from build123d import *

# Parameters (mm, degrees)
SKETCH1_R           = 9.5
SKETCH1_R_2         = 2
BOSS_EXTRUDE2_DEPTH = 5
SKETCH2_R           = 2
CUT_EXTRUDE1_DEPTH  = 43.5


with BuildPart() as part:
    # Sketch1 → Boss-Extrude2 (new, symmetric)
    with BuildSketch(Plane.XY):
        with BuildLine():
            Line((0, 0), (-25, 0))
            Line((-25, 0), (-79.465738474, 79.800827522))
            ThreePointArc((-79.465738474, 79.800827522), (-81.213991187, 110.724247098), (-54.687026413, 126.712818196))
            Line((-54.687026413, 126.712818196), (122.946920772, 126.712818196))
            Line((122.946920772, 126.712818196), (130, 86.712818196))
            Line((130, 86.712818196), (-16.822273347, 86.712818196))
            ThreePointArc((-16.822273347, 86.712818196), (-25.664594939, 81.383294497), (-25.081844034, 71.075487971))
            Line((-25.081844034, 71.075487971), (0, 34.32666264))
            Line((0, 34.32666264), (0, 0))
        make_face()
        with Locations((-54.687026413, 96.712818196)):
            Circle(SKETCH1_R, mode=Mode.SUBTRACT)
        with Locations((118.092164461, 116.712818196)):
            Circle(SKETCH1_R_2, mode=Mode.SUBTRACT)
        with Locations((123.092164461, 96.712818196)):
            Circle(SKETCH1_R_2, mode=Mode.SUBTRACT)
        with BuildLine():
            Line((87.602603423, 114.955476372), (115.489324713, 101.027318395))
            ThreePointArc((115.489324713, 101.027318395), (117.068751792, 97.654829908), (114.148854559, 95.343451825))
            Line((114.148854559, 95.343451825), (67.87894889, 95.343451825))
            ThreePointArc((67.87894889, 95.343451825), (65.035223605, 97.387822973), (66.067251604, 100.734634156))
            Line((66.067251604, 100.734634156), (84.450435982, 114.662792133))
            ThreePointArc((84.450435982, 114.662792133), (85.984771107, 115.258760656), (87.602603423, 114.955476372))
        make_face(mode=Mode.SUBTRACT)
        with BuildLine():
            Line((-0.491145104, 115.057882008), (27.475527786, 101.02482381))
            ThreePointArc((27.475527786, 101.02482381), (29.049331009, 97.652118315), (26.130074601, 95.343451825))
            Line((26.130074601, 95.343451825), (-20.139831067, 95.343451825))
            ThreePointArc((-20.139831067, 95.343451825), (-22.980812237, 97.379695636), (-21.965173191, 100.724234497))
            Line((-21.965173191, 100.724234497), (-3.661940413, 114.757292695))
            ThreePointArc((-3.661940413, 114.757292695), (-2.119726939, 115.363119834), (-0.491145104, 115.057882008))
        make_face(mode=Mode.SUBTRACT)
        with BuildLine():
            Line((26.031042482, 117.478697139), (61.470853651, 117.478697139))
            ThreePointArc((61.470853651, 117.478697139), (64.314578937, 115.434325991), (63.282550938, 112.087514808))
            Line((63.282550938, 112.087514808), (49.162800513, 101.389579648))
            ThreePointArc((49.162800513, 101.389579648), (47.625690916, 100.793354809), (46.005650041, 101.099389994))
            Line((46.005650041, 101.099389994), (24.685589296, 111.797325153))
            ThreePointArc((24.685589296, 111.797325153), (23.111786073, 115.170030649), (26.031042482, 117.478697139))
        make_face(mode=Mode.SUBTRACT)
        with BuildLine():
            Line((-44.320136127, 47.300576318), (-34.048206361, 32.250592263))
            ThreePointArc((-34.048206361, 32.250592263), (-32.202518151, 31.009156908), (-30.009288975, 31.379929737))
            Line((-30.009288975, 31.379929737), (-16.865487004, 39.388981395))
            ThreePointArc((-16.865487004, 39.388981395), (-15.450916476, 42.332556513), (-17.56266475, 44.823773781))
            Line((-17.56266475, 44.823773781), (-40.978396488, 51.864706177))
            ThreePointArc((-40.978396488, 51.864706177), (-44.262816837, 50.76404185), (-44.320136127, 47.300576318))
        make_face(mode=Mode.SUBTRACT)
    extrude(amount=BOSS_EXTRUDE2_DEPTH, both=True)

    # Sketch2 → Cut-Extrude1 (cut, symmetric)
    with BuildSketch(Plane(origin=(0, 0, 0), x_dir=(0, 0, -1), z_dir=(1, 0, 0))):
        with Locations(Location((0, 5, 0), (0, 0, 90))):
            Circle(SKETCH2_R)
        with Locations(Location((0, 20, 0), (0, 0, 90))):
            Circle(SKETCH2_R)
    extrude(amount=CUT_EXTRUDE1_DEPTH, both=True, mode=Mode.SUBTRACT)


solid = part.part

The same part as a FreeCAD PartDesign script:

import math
import FreeCAD as App
import Part
import Sketcher
Q = App.Units.Quantity

doc = App.newDocument("Part")
body = doc.addObject("PartDesign::Body", "Body")

# Sketch on XY plane
sketch1 = doc.addObject("Sketcher::SketchObject", "Sketch")
body.addObject(sketch1)
sketch1.AttachmentSupport = (doc.XY_Plane, [""])
sketch1.MapMode = "FlatFace"
sketch1.addGeometry([
    Part.LineSegment(App.Vector(-25, 0, 0), App.Vector(0, 0, 0)),  # 0
    Part.LineSegment(App.Vector(0, 0, 0), App.Vector(0, 34.326663, 0)),  # 1
    Part.LineSegment(App.Vector(0, 34.326663, 0), App.Vector(-25.081844, 71.075488, 0)),  # 2
    Part.ArcOfCircle(Part.Circle(App.Vector(-16.822273, 76.712818, 0), App.Vector(0, 0, 1), 10), math.radians(90), math.radians(214.314356)),  # 3
    Part.LineSegment(App.Vector(-16.822273, 86.712818, 0), App.Vector(130, 86.712818, 0)),  # 4
    Part.LineSegment(App.Vector(130, 86.712818, 0), App.Vector(122.946921, 126.712818, 0)),  # 5
    Part.LineSegment(App.Vector(122.946921, 126.712818, 0), App.Vector(-54.687026, 126.712818, 0)),  # 6
    Part.ArcOfCircle(Part.Circle(App.Vector(-54.687026, 96.712818, 0), App.Vector(0, 0, 1), 30), math.radians(90), math.radians(214.314356)),  # 7
    Part.LineSegment(App.Vector(-79.465738, 79.800828, 0), App.Vector(-25, 0, 0)),  # 8
    Part.ArcOfCircle(Part.Circle(App.Vector(-41.842265, 48.991775, 0), App.Vector(0, 0, 1), 3), math.radians(73.264367), math.radians(214.314356)),  # 9
    Part.LineSegment(App.Vector(-40.978396, 51.864706, 0), App.Vector(-17.562665, 44.823774, 0)),  # 10
    Part.ArcOfCircle(Part.Circle(App.Vector(-18.426533, 41.950843, 0), App.Vector(0, 0, 1), 3), math.radians(-58.644354), math.radians(73.264367)),  # 11
    Part.LineSegment(App.Vector(-16.865487, 39.388981, 0), App.Vector(-30.009289, 31.37993, 0)),  # 12
    Part.ArcOfCircle(Part.Circle(App.Vector(-31.570335, 33.941791, 0), App.Vector(0, 0, 1), 3), math.radians(-145.685644), math.radians(-58.644354)),  # 13
    Part.LineSegment(App.Vector(-34.048206, 32.250592, 0), App.Vector(-44.320136, 47.300576, 0)),  # 14
    Part.Circle(App.Vector(123.092164, 96.712818, 0), App.Vector(0, 0, 1), 2),  # 15
    Part.LineSegment(App.Vector(87.602603, 114.955476, 0), App.Vector(115.489325, 101.027318, 0)),  # 16
    Part.ArcOfCircle(Part.Circle(App.Vector(114.148855, 98.343452, 0), App.Vector(0, 0, 1), 3), math.radians(-90), math.radians(63.459942)),  # 17
    Part.LineSegment(App.Vector(114.148855, 95.343452, 0), App.Vector(67.878949, 95.343452, 0)),  # 18
    Part.ArcOfCircle(Part.Circle(App.Vector(67.878949, 98.343452, 0), App.Vector(0, 0, 1), 3), math.radians(127.149663), math.radians(270)),  # 19
    Part.LineSegment(App.Vector(66.067252, 100.734634, 0), App.Vector(84.450436, 114.662792, 0)),  # 20
    Part.ArcOfCircle(Part.Circle(App.Vector(86.262133, 112.27161, 0), App.Vector(0, 0, 1), 3), math.radians(63.459943), math.radians(127.149663)),  # 21
    Part.Circle(App.Vector(118.092164, 116.712818, 0), App.Vector(0, 0, 1), 2),  # 22
    Part.LineSegment(App.Vector(26.031042, 117.478697, 0), App.Vector(61.470854, 117.478697, 0)),  # 23
    Part.ArcOfCircle(Part.Circle(App.Vector(61.470854, 114.478697, 0), App.Vector(0, 0, 1), 3), math.radians(-52.850337), math.radians(90)),  # 24
    Part.LineSegment(App.Vector(63.282551, 112.087515, 0), App.Vector(49.162801, 101.38958, 0)),  # 25
    Part.ArcOfCircle(Part.Circle(App.Vector(47.351103, 103.780762, 0), App.Vector(0, 0, 1), 3), math.radians(-116.646486), math.radians(-52.850337)),  # 26
    Part.LineSegment(App.Vector(46.00565, 101.09939, 0), App.Vector(24.685589, 111.797325, 0)),  # 27
    Part.ArcOfCircle(Part.Circle(App.Vector(26.031042, 114.478697, 0), App.Vector(0, 0, 1), 3), math.radians(90), math.radians(243.353514)),  # 28
    Part.Circle(App.Vector(-54.687026, 96.712818, 0), App.Vector(0, 0, 1), 9.5),  # 29
    Part.LineSegment(App.Vector(-0.491145, 115.057882, 0), App.Vector(27.475528, 101.024824, 0)),  # 30
    Part.ArcOfCircle(Part.Circle(App.Vector(26.130075, 98.343452, 0), App.Vector(0, 0, 1), 3), math.radians(-90), math.radians(63.353514)),  # 31
    Part.LineSegment(App.Vector(26.130075, 95.343452, 0), App.Vector(-20.139831, 95.343452, 0)),  # 32
    Part.ArcOfCircle(Part.Circle(App.Vector(-20.139831, 98.343452, 0), App.Vector(0, 0, 1), 3), math.radians(127.477323), math.radians(270)),  # 33
    Part.LineSegment(App.Vector(-21.965173, 100.724234, 0), App.Vector(-3.66194, 114.757293, 0)),  # 34
    Part.ArcOfCircle(Part.Circle(App.Vector(-1.836598, 112.37651, 0), App.Vector(0, 0, 1), 3), math.radians(63.353514), math.radians(127.477322)),  # 35
], False)
sketch1.addConstraint([
    Sketcher.Constraint("Coincident", 0, 2, 1, 1),
    Sketcher.Constraint("Coincident", 1, 2, 2, 1),
    Sketcher.Constraint("Tangent", 2, 2, 3, 2),
    Sketcher.Constraint("Tangent", 3, 1, 4, 1),
    Sketcher.Constraint("Coincident", 4, 2, 5, 1),
    Sketcher.Constraint("Coincident", 5, 2, 6, 1),
    Sketcher.Constraint("Tangent", 6, 2, 7, 1),
    Sketcher.Constraint("Tangent", 7, 2, 8, 1),
    Sketcher.Constraint("Coincident", 8, 2, 0, 1),
    Sketcher.Constraint("Tangent", 9, 1, 10, 1),
    Sketcher.Constraint("Tangent", 10, 2, 11, 2),
    Sketcher.Constraint("Tangent", 11, 1, 12, 1),
    Sketcher.Constraint("Tangent", 12, 2, 13, 2),
    Sketcher.Constraint("Tangent", 13, 1, 14, 1),
    Sketcher.Constraint("Tangent", 14, 2, 9, 2),
    Sketcher.Constraint("Tangent", 16, 2, 17, 2),
    Sketcher.Constraint("Tangent", 17, 1, 18, 1),
    Sketcher.Constraint("Tangent", 18, 2, 19, 2),
    Sketcher.Constraint("Tangent", 19, 1, 20, 1),
    Sketcher.Constraint("Tangent", 20, 2, 21, 2),
    Sketcher.Constraint("Tangent", 21, 1, 16, 1),
    Sketcher.Constraint("Tangent", 23, 2, 24, 2),
    Sketcher.Constraint("Tangent", 24, 1, 25, 1),
    Sketcher.Constraint("Tangent", 25, 2, 26, 2),
    Sketcher.Constraint("Tangent", 26, 1, 27, 1),
    Sketcher.Constraint("Tangent", 27, 2, 28, 2),
    Sketcher.Constraint("Tangent", 28, 1, 23, 1),
    Sketcher.Constraint("Tangent", 30, 2, 31, 2),
    Sketcher.Constraint("Tangent", 31, 1, 32, 1),
    Sketcher.Constraint("Tangent", 32, 2, 33, 2),
    Sketcher.Constraint("Tangent", 33, 1, 34, 1),
    Sketcher.Constraint("Tangent", 34, 2, 35, 2),
    Sketcher.Constraint("Tangent", 35, 1, 30, 1),
    Sketcher.Constraint("Horizontal", 0),
    Sketcher.Constraint("Vertical", 1),
    Sketcher.Constraint("Horizontal", 4),
    Sketcher.Constraint("Horizontal", 6),
    Sketcher.Constraint("Horizontal", 18),
    Sketcher.Constraint("Horizontal", 23),
    Sketcher.Constraint("Horizontal", 32),
    Sketcher.Constraint("Coincident", 0, 2, -1, 1),
    Sketcher.Constraint("Coincident", 29, 3, 7, 3),
    Sketcher.Constraint("Equal", 9, 11),
    Sketcher.Constraint("Equal", 11, 13),
    Sketcher.Constraint("Equal", 13, 17),
    Sketcher.Constraint("Equal", 17, 19),
    Sketcher.Constraint("Equal", 19, 21),
    Sketcher.Constraint("Equal", 15, 22),
    Sketcher.Constraint("Equal", 21, 24),
    Sketcher.Constraint("Equal", 24, 26),
    Sketcher.Constraint("Equal", 26, 28),
    Sketcher.Constraint("Equal", 28, 31),
    Sketcher.Constraint("Equal", 31, 33),
    Sketcher.Constraint("Equal", 33, 35),
    Sketcher.Constraint("Parallel", 2, 8),
    Sketcher.Constraint("Parallel", 8, 14),
    Sketcher.Constraint("Parallel", 20, 25),
    Sketcher.Constraint("Parallel", 27, 30),
    Sketcher.Constraint("Horizontal", 7, 3, 15, 3),
    Sketcher.Constraint("Horizontal", 19, 3, 31, 3),
    Sketcher.Constraint("Equal", 18, 32),
    Sketcher.Constraint("Equal", 20, 34),
    Sketcher.Constraint("Diameter", 15, Q("4 mm")),
    Sketcher.Constraint("Diameter", 29, Q("19 mm")),
    Sketcher.Constraint("Radius", 3, Q("10 mm")),
    Sketcher.Constraint("Radius", 7, Q("30 mm")),
    Sketcher.Constraint("Radius", 9, Q("3 mm")),
    Sketcher.Constraint("DistanceX", 0, 1, 0, 2, Q("25 mm")),
    Sketcher.Constraint("Angle", 5, Q("100 deg")),
    Sketcher.Constraint("DistanceX", -1, 1, 4, 2, Q("130 mm")),
    Sketcher.Constraint("DistanceY", 3, 3, 7, 3, Q("20 mm")),
    Sketcher.Constraint("DistanceX", 22, 3, 15, 3, Q("5 mm")),
    Sketcher.Constraint("DistanceY", 15, 3, 22, 3, Q("20 mm")),
    Sketcher.Constraint("DistanceX", 24, 3, 17, 3, Q("52.678001 mm")),
    Sketcher.Constraint("DistanceY", 10, 2, 9, 3, Q("4.168002 mm")),
    Sketcher.Constraint("Distance", 12, Q("15.3917 mm")),
    Sketcher.Constraint("DistanceX", 23, 1, 23, 2, Q("35.439811 mm")),
    Sketcher.Constraint("DistanceX", 35, 3, -1, 1, Q("1.836598 mm")),
    Sketcher.Constraint("DistanceX", -1, 1, 25, 2, Q("49.162801 mm")),
    Sketcher.Constraint("DistanceX", 13, 3, 11, 3, Q("13.143802 mm")),
    Sketcher.Constraint("DistanceX", 13, 3, 15, 3, Q("154.6625 mm")),
    Sketcher.Constraint("DistanceX", 35, 3, 26, 3, Q("49.187702 mm")),
    Sketcher.Constraint("DistanceX", 9, 3, 10, 2, Q("24.2796 mm")),
    Sketcher.Constraint("DistanceY", 15, 3, 16, 2, Q("4.3145 mm")),
    Sketcher.Constraint("DistanceX", 24, 1, 19, 1, Q("2.784701 mm")),
    Sketcher.Constraint("DistanceX", 26, 1, 19, 1, Q("20.061602 mm")),
    Sketcher.Constraint("DistanceY", 30, 2, 27, 2, Q("10.772501 mm")),
    Sketcher.Constraint("DistanceX", 33, 1, 3, 1, Q("5.1429 mm")),
    Sketcher.Constraint("Distance", 30, Q("31.289959 mm")),
    Sketcher.Constraint("DistanceX", 6, 2, 6, 1, Q("177.633947 mm")),
    Sketcher.Constraint("DistanceY", -1, 1, 13, 3, Q("33.941791 mm")),
    Sketcher.Constraint("DistanceX", 12, 2, -1, 1, Q("30.009289 mm")),
])
pad1 = doc.addObject("PartDesign::Pad", "Pad")
body.addObject(pad1)
pad1.Profile = sketch1
pad1.Length = 10
pad1.Midplane = True

# Sketch on YZ plane
sketch2 = doc.addObject("Sketcher::SketchObject", "Sketch001")
body.addObject(sketch2)
sketch2.AttachmentSupport = (doc.YZ_Plane, [""])
sketch2.MapMode = "FlatFace"
sketch2.addGeometry([
    Part.Circle(App.Vector(5, 0, 0), App.Vector(0, 0, 1), 2),
    Part.Circle(App.Vector(20, 0, 0), App.Vector(0, 0, 1), 2),
], False)
sketch2.addConstraint([
    Sketcher.Constraint("Equal", 0, 1),
    Sketcher.Constraint("PointOnObject", 0, 3, -1),
    Sketcher.Constraint("PointOnObject", 1, 3, -1),
    Sketcher.Constraint("Diameter", 0, Q("4 mm")),
    Sketcher.Constraint("DistanceX", -1, 1, 0, 3, Q("5 mm")),
    Sketcher.Constraint("DistanceX", -1, 1, 1, 3, Q("20 mm")),
])
pocket1 = doc.addObject("PartDesign::Pocket", "Pocket")
body.addObject(pocket1)
pocket1.Profile = sketch2
pocket1.Length = 87
pocket1.Midplane = True

doc.recompute()
